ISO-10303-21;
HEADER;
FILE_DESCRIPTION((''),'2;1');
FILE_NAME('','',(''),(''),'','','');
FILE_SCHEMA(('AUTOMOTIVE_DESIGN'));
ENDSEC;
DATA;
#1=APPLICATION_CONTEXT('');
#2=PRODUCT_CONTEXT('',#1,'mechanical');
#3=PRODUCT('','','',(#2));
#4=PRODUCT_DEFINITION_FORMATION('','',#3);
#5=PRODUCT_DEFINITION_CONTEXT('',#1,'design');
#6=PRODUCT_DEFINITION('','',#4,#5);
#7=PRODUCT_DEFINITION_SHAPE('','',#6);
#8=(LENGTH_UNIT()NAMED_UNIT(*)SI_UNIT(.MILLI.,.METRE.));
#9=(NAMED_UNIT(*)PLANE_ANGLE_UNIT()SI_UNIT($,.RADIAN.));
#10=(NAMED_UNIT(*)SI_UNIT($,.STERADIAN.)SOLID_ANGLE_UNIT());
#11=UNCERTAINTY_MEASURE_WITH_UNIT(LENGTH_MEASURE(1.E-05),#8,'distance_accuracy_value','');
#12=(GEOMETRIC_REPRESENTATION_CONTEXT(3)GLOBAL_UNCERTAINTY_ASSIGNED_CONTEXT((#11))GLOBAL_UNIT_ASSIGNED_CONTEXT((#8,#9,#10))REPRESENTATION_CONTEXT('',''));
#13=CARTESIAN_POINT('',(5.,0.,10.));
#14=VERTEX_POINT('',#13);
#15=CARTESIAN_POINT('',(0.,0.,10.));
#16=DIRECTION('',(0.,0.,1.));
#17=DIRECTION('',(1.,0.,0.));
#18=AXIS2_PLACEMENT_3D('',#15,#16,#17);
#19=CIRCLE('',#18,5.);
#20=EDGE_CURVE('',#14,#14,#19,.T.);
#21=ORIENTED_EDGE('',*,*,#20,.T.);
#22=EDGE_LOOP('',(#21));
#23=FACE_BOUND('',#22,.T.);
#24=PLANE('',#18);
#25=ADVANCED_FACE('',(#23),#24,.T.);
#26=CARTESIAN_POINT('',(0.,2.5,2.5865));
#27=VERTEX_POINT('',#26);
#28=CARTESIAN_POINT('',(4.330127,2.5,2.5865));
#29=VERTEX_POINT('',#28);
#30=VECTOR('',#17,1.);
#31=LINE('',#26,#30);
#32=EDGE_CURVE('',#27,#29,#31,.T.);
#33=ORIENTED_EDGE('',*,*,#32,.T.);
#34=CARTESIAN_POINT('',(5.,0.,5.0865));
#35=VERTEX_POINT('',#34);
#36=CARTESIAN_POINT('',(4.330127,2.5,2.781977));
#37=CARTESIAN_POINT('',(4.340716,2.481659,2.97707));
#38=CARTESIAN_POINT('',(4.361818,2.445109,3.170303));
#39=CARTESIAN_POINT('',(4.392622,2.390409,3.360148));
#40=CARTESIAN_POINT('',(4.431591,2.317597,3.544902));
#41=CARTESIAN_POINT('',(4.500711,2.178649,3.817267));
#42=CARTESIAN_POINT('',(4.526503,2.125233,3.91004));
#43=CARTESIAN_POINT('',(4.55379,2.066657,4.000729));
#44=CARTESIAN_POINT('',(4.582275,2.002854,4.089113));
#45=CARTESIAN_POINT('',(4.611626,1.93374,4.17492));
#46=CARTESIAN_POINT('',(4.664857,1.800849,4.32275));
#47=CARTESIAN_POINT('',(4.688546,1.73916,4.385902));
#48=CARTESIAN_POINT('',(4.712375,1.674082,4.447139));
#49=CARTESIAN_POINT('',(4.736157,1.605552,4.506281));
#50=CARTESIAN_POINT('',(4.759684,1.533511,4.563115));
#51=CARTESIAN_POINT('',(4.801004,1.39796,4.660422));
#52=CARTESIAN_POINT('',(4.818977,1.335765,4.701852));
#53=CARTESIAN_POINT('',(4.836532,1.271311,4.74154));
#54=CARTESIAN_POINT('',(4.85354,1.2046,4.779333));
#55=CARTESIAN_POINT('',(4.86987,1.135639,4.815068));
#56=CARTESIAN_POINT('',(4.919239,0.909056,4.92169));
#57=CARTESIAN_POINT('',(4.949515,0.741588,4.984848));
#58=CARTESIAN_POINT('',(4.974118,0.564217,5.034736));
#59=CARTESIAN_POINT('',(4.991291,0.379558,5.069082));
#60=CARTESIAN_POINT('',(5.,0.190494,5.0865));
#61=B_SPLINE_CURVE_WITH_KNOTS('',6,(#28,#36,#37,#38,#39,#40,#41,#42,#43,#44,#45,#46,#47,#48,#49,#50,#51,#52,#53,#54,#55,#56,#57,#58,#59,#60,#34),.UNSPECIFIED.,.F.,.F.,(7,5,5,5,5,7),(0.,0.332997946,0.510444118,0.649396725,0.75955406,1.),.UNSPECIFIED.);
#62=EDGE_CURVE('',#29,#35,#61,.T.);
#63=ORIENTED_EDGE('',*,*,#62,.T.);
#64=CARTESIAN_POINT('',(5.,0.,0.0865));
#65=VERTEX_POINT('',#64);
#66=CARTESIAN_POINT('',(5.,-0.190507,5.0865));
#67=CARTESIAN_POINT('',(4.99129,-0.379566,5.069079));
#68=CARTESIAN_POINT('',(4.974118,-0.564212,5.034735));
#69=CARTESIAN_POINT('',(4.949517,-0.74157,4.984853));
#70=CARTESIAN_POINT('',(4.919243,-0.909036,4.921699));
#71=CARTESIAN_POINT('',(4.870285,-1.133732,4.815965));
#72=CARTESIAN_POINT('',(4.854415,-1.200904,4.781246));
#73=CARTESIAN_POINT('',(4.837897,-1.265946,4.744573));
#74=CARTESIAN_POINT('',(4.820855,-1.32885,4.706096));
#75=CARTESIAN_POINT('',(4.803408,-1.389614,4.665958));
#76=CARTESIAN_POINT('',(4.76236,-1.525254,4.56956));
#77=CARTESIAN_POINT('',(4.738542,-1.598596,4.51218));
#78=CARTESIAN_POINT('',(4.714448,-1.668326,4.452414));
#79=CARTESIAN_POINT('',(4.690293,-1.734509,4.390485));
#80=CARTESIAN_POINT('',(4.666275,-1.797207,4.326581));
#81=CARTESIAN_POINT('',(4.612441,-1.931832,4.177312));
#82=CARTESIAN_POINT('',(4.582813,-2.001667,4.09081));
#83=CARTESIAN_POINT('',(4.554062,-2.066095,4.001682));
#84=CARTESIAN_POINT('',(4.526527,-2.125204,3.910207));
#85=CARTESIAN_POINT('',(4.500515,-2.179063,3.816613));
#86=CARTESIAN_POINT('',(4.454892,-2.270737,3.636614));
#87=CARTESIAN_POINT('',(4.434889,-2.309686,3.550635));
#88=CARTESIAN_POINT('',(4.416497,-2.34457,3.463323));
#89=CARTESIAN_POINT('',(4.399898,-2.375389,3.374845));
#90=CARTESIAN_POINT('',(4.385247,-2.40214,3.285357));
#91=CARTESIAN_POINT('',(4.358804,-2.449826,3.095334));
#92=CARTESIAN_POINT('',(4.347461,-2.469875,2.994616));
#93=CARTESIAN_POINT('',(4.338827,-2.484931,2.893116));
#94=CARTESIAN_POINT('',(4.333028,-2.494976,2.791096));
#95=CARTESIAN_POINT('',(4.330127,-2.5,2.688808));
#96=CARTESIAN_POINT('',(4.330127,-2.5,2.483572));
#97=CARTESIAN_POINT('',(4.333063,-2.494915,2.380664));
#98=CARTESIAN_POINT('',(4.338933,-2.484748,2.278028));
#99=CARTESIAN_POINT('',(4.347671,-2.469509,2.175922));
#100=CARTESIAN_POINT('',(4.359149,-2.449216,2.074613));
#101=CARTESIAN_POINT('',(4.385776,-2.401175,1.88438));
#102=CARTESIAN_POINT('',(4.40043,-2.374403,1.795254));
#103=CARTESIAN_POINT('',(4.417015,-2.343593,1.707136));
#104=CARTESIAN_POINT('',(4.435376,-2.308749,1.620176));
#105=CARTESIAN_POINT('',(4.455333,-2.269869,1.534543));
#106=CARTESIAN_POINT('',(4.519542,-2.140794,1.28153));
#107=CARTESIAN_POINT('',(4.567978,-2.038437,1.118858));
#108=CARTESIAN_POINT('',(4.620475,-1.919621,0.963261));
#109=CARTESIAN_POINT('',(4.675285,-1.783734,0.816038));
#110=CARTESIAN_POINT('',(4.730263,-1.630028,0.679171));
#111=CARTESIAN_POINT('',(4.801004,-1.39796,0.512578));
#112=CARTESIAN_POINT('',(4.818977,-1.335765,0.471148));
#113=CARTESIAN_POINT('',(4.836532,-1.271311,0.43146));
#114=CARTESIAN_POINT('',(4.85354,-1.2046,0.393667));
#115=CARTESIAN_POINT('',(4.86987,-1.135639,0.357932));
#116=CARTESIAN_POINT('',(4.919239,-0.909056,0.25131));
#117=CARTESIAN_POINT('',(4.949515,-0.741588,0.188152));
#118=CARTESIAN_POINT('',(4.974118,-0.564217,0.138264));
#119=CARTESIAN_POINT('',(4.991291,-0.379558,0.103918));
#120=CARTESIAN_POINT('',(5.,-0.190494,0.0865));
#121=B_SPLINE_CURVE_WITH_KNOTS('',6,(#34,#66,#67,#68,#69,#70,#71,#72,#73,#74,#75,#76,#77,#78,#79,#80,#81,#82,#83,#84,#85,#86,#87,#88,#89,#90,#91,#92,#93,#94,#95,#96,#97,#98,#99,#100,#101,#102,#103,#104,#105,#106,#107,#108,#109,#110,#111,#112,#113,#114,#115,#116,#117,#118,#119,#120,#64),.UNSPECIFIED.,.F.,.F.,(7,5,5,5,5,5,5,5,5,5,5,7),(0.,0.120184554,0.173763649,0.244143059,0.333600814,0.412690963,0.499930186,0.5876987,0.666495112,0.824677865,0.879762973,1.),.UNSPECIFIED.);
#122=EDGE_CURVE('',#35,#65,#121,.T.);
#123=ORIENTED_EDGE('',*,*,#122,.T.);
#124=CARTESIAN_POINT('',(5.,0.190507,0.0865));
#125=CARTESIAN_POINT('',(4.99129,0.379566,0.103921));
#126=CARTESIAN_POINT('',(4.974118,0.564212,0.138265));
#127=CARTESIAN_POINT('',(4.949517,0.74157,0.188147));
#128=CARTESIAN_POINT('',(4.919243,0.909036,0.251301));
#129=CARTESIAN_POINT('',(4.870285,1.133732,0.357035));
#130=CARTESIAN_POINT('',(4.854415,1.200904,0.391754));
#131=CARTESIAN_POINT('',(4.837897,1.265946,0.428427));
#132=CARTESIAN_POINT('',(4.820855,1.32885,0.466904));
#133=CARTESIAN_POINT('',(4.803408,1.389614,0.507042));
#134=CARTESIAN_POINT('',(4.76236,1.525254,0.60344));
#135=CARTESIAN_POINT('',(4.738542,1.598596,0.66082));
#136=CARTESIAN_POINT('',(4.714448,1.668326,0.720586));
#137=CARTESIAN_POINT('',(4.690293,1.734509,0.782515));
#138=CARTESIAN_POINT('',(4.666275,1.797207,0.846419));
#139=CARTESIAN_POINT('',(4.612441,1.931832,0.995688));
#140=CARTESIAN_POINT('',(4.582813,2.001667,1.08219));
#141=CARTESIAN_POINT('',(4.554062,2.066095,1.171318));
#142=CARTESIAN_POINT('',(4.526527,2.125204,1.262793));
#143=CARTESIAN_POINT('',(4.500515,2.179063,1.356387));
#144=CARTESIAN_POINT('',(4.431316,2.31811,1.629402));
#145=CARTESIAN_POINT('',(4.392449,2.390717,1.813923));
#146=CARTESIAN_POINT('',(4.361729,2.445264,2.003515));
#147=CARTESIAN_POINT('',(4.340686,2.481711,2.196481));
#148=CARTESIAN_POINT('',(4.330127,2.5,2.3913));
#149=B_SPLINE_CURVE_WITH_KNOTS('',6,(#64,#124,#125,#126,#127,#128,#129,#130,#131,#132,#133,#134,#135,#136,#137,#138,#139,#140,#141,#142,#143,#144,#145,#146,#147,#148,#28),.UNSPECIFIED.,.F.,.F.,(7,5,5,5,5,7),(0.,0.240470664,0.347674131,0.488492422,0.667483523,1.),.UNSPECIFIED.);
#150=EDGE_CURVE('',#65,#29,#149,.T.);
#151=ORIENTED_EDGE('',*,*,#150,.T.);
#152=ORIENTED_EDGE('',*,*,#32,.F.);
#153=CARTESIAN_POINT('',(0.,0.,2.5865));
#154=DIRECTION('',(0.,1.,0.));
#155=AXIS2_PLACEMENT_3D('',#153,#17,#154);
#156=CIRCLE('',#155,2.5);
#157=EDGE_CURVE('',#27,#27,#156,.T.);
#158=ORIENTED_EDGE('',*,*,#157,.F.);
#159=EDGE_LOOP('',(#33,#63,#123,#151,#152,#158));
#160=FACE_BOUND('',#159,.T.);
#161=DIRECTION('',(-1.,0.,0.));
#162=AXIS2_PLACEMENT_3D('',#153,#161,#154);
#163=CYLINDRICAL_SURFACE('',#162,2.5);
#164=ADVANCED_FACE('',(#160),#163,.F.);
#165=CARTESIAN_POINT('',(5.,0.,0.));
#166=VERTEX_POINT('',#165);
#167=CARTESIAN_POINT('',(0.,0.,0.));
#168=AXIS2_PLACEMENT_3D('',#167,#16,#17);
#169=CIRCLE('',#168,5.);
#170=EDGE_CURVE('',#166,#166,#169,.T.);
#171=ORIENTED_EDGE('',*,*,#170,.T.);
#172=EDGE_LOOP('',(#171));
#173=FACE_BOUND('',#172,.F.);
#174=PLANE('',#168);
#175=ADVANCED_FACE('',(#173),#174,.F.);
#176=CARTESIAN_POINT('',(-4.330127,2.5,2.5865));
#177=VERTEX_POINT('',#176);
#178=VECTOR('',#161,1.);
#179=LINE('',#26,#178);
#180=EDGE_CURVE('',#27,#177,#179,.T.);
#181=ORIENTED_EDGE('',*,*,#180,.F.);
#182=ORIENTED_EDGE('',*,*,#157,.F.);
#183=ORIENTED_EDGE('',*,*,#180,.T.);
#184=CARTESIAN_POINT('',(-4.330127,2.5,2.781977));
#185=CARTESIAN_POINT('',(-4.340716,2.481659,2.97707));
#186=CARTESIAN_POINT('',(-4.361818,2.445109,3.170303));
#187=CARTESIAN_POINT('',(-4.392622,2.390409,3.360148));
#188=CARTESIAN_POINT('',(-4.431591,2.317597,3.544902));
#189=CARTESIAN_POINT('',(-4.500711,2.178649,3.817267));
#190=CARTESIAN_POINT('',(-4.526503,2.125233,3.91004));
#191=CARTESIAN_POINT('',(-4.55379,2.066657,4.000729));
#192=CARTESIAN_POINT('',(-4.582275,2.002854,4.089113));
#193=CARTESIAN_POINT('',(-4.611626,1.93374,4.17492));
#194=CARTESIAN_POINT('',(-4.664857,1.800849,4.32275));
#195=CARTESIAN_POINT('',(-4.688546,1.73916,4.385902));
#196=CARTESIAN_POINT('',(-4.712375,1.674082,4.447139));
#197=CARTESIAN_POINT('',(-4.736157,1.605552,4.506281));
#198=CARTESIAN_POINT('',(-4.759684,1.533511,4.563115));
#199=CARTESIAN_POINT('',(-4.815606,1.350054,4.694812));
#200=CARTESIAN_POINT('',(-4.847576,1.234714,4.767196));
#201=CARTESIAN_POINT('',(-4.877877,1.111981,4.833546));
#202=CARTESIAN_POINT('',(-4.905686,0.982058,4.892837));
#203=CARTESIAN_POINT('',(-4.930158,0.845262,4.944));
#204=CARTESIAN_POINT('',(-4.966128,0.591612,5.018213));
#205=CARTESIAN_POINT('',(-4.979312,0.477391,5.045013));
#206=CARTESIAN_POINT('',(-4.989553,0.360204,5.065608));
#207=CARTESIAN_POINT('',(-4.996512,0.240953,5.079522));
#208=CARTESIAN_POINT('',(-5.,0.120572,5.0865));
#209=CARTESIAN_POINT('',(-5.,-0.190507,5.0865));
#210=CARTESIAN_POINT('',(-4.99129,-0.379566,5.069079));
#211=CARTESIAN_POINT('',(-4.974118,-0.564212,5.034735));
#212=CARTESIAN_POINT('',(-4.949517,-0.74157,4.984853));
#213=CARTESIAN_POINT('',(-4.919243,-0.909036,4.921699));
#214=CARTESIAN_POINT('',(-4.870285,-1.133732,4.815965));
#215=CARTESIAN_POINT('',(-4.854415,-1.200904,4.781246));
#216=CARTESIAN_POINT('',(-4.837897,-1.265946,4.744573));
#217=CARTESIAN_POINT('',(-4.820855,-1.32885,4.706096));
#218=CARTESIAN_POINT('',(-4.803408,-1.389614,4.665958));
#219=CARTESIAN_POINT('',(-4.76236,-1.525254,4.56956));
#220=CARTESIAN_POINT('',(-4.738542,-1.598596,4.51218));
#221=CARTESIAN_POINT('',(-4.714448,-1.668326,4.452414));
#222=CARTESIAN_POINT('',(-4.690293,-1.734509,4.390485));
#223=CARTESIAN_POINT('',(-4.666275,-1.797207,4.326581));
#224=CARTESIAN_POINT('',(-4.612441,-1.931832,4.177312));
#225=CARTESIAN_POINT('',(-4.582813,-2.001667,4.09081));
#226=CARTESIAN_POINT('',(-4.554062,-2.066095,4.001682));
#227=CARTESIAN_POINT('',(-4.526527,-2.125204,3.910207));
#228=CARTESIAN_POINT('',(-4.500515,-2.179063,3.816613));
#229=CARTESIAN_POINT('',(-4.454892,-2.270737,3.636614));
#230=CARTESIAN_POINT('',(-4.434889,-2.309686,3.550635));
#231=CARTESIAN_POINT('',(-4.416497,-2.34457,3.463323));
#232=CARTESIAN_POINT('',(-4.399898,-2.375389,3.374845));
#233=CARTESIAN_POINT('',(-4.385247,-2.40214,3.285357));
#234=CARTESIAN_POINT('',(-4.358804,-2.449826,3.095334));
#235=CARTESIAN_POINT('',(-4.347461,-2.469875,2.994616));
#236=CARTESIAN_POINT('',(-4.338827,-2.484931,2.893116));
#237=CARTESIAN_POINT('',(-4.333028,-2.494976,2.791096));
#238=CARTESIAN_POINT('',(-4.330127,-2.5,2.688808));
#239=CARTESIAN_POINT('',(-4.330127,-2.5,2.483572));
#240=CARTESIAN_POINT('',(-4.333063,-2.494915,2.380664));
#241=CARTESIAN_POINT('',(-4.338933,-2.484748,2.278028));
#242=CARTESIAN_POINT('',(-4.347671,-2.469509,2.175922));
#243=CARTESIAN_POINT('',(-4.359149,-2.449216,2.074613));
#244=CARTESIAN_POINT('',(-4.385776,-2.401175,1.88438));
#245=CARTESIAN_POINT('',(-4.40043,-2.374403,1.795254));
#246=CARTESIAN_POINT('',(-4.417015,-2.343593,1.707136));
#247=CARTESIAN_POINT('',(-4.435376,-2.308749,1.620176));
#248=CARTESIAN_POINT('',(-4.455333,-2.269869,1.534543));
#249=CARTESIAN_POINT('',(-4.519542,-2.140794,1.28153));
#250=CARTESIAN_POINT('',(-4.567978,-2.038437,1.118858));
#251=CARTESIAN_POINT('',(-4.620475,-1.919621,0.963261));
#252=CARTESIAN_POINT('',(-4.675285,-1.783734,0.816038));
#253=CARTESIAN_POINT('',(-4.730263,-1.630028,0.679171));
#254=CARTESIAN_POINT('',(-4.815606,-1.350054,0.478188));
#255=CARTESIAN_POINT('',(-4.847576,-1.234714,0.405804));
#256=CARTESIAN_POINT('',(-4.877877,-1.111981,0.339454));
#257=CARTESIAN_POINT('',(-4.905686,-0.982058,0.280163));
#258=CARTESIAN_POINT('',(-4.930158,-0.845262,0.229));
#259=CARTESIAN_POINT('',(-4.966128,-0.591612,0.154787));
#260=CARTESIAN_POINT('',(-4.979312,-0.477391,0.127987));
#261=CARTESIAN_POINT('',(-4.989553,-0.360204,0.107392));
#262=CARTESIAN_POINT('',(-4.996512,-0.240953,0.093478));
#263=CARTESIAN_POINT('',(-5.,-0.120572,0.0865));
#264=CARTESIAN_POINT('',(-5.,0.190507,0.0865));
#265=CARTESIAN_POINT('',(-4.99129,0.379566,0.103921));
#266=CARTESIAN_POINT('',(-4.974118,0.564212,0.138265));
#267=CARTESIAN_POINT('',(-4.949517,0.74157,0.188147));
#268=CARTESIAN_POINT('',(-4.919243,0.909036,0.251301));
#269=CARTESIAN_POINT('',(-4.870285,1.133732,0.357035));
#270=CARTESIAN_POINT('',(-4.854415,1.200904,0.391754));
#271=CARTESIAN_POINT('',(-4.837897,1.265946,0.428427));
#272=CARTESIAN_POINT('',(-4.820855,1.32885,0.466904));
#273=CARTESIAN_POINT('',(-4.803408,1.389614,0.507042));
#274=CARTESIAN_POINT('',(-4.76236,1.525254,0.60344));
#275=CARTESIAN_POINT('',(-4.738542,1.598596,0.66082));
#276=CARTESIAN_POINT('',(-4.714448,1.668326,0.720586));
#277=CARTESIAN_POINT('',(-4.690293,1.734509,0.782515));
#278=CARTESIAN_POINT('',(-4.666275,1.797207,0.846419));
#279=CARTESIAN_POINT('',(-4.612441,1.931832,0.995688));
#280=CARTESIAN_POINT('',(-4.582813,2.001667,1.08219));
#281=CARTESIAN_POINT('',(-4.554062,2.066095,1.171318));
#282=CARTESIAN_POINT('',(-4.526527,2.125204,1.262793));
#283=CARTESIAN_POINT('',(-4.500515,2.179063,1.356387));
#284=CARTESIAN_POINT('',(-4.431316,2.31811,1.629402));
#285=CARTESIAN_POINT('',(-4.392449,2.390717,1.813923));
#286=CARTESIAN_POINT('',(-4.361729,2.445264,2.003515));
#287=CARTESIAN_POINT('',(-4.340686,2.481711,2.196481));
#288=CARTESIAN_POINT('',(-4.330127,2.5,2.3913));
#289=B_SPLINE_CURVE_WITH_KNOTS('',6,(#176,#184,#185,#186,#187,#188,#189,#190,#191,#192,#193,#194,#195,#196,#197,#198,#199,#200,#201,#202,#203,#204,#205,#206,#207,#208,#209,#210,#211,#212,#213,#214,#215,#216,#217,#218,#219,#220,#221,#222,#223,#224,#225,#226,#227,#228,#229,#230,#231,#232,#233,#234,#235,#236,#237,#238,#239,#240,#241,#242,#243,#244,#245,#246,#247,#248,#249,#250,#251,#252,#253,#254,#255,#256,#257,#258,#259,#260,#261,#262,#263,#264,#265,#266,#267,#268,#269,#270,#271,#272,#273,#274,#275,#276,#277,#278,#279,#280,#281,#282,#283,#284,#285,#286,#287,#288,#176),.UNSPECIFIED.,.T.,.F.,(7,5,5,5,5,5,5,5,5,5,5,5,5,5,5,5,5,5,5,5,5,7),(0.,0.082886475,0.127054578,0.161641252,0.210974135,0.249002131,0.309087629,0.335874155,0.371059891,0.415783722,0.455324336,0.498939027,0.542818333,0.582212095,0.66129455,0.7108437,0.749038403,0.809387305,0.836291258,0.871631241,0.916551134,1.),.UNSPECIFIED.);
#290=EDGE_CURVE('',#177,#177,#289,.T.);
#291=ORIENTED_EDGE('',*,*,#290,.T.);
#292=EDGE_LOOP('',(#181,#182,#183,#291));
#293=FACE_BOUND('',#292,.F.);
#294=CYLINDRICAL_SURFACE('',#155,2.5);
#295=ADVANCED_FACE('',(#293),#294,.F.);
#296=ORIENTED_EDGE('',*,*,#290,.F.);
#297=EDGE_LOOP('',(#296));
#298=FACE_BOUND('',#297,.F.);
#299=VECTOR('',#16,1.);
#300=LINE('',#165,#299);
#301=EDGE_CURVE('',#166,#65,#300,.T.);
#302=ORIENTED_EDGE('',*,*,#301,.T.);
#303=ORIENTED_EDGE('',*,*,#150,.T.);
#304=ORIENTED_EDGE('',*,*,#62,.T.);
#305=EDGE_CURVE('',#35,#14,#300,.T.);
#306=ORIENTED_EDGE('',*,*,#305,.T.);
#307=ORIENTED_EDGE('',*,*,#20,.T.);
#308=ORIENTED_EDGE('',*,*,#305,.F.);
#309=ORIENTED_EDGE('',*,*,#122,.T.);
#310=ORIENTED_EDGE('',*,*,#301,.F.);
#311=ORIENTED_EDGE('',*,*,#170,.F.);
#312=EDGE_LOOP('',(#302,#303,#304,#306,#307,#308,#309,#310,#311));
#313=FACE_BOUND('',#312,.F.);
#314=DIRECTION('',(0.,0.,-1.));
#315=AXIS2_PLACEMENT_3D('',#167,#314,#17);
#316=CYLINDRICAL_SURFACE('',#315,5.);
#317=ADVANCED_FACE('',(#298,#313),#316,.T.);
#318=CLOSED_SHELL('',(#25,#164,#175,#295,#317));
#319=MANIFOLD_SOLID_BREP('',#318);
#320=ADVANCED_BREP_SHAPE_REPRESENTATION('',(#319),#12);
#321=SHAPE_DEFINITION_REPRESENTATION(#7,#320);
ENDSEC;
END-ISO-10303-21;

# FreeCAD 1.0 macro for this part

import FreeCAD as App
import Part
import Sketcher
Q = App.Units.Quantity

doc = App.newDocument("Part")
body = doc.addObject("PartDesign::Body", "Body")

# Sketch on XY plane
sketch1 = doc.addObject("Sketcher::SketchObject", "Sketch")
body.addObject(sketch1)
sketch1.AttachmentSupport = (doc.XY_Plane, [""])
sketch1.MapMode = "FlatFace"
sketch1.addGeometry(Part.Circle(App.Vector(0, 0, 0), App.Vector(0, 0, 1), 5), False)
sketch1.addConstraint([
    Sketcher.Constraint("Coincident", 0, 3, -1, 1),
    Sketcher.Constraint("Diameter", 0, Q("10 mm")),
])
pad1 = doc.addObject("PartDesign::Pad", "Pad")
body.addObject(pad1)
pad1.Profile = sketch1
pad1.Length = 10

# Sketch on YZ plane
sketch2 = doc.addObject("Sketcher::SketchObject", "Sketch001")
body.addObject(sketch2)
sketch2.AttachmentSupport = (doc.YZ_Plane, [""])
sketch2.MapMode = "FlatFace"
sketch2.addGeometry(Part.Circle(App.Vector(0, 2.6, 0), App.Vector(0, 0, 1), 2.5), False)
sketch2.addConstraint([
    Sketcher.Constraint("PointOnObject", 0, 3, -2),
    Sketcher.Constraint("Diameter", 0, Q("5 mm")),
    Sketcher.Constraint("DistanceY", -1, 1, 0, 3, Q("2.5865 mm")),
])
pocket1 = doc.addObject("PartDesign::Pocket", "Pocket")
body.addObject(pocket1)
pocket1.Profile = sketch2
pocket1.Length = 15
pocket1.Midplane = True

doc.recompute()
